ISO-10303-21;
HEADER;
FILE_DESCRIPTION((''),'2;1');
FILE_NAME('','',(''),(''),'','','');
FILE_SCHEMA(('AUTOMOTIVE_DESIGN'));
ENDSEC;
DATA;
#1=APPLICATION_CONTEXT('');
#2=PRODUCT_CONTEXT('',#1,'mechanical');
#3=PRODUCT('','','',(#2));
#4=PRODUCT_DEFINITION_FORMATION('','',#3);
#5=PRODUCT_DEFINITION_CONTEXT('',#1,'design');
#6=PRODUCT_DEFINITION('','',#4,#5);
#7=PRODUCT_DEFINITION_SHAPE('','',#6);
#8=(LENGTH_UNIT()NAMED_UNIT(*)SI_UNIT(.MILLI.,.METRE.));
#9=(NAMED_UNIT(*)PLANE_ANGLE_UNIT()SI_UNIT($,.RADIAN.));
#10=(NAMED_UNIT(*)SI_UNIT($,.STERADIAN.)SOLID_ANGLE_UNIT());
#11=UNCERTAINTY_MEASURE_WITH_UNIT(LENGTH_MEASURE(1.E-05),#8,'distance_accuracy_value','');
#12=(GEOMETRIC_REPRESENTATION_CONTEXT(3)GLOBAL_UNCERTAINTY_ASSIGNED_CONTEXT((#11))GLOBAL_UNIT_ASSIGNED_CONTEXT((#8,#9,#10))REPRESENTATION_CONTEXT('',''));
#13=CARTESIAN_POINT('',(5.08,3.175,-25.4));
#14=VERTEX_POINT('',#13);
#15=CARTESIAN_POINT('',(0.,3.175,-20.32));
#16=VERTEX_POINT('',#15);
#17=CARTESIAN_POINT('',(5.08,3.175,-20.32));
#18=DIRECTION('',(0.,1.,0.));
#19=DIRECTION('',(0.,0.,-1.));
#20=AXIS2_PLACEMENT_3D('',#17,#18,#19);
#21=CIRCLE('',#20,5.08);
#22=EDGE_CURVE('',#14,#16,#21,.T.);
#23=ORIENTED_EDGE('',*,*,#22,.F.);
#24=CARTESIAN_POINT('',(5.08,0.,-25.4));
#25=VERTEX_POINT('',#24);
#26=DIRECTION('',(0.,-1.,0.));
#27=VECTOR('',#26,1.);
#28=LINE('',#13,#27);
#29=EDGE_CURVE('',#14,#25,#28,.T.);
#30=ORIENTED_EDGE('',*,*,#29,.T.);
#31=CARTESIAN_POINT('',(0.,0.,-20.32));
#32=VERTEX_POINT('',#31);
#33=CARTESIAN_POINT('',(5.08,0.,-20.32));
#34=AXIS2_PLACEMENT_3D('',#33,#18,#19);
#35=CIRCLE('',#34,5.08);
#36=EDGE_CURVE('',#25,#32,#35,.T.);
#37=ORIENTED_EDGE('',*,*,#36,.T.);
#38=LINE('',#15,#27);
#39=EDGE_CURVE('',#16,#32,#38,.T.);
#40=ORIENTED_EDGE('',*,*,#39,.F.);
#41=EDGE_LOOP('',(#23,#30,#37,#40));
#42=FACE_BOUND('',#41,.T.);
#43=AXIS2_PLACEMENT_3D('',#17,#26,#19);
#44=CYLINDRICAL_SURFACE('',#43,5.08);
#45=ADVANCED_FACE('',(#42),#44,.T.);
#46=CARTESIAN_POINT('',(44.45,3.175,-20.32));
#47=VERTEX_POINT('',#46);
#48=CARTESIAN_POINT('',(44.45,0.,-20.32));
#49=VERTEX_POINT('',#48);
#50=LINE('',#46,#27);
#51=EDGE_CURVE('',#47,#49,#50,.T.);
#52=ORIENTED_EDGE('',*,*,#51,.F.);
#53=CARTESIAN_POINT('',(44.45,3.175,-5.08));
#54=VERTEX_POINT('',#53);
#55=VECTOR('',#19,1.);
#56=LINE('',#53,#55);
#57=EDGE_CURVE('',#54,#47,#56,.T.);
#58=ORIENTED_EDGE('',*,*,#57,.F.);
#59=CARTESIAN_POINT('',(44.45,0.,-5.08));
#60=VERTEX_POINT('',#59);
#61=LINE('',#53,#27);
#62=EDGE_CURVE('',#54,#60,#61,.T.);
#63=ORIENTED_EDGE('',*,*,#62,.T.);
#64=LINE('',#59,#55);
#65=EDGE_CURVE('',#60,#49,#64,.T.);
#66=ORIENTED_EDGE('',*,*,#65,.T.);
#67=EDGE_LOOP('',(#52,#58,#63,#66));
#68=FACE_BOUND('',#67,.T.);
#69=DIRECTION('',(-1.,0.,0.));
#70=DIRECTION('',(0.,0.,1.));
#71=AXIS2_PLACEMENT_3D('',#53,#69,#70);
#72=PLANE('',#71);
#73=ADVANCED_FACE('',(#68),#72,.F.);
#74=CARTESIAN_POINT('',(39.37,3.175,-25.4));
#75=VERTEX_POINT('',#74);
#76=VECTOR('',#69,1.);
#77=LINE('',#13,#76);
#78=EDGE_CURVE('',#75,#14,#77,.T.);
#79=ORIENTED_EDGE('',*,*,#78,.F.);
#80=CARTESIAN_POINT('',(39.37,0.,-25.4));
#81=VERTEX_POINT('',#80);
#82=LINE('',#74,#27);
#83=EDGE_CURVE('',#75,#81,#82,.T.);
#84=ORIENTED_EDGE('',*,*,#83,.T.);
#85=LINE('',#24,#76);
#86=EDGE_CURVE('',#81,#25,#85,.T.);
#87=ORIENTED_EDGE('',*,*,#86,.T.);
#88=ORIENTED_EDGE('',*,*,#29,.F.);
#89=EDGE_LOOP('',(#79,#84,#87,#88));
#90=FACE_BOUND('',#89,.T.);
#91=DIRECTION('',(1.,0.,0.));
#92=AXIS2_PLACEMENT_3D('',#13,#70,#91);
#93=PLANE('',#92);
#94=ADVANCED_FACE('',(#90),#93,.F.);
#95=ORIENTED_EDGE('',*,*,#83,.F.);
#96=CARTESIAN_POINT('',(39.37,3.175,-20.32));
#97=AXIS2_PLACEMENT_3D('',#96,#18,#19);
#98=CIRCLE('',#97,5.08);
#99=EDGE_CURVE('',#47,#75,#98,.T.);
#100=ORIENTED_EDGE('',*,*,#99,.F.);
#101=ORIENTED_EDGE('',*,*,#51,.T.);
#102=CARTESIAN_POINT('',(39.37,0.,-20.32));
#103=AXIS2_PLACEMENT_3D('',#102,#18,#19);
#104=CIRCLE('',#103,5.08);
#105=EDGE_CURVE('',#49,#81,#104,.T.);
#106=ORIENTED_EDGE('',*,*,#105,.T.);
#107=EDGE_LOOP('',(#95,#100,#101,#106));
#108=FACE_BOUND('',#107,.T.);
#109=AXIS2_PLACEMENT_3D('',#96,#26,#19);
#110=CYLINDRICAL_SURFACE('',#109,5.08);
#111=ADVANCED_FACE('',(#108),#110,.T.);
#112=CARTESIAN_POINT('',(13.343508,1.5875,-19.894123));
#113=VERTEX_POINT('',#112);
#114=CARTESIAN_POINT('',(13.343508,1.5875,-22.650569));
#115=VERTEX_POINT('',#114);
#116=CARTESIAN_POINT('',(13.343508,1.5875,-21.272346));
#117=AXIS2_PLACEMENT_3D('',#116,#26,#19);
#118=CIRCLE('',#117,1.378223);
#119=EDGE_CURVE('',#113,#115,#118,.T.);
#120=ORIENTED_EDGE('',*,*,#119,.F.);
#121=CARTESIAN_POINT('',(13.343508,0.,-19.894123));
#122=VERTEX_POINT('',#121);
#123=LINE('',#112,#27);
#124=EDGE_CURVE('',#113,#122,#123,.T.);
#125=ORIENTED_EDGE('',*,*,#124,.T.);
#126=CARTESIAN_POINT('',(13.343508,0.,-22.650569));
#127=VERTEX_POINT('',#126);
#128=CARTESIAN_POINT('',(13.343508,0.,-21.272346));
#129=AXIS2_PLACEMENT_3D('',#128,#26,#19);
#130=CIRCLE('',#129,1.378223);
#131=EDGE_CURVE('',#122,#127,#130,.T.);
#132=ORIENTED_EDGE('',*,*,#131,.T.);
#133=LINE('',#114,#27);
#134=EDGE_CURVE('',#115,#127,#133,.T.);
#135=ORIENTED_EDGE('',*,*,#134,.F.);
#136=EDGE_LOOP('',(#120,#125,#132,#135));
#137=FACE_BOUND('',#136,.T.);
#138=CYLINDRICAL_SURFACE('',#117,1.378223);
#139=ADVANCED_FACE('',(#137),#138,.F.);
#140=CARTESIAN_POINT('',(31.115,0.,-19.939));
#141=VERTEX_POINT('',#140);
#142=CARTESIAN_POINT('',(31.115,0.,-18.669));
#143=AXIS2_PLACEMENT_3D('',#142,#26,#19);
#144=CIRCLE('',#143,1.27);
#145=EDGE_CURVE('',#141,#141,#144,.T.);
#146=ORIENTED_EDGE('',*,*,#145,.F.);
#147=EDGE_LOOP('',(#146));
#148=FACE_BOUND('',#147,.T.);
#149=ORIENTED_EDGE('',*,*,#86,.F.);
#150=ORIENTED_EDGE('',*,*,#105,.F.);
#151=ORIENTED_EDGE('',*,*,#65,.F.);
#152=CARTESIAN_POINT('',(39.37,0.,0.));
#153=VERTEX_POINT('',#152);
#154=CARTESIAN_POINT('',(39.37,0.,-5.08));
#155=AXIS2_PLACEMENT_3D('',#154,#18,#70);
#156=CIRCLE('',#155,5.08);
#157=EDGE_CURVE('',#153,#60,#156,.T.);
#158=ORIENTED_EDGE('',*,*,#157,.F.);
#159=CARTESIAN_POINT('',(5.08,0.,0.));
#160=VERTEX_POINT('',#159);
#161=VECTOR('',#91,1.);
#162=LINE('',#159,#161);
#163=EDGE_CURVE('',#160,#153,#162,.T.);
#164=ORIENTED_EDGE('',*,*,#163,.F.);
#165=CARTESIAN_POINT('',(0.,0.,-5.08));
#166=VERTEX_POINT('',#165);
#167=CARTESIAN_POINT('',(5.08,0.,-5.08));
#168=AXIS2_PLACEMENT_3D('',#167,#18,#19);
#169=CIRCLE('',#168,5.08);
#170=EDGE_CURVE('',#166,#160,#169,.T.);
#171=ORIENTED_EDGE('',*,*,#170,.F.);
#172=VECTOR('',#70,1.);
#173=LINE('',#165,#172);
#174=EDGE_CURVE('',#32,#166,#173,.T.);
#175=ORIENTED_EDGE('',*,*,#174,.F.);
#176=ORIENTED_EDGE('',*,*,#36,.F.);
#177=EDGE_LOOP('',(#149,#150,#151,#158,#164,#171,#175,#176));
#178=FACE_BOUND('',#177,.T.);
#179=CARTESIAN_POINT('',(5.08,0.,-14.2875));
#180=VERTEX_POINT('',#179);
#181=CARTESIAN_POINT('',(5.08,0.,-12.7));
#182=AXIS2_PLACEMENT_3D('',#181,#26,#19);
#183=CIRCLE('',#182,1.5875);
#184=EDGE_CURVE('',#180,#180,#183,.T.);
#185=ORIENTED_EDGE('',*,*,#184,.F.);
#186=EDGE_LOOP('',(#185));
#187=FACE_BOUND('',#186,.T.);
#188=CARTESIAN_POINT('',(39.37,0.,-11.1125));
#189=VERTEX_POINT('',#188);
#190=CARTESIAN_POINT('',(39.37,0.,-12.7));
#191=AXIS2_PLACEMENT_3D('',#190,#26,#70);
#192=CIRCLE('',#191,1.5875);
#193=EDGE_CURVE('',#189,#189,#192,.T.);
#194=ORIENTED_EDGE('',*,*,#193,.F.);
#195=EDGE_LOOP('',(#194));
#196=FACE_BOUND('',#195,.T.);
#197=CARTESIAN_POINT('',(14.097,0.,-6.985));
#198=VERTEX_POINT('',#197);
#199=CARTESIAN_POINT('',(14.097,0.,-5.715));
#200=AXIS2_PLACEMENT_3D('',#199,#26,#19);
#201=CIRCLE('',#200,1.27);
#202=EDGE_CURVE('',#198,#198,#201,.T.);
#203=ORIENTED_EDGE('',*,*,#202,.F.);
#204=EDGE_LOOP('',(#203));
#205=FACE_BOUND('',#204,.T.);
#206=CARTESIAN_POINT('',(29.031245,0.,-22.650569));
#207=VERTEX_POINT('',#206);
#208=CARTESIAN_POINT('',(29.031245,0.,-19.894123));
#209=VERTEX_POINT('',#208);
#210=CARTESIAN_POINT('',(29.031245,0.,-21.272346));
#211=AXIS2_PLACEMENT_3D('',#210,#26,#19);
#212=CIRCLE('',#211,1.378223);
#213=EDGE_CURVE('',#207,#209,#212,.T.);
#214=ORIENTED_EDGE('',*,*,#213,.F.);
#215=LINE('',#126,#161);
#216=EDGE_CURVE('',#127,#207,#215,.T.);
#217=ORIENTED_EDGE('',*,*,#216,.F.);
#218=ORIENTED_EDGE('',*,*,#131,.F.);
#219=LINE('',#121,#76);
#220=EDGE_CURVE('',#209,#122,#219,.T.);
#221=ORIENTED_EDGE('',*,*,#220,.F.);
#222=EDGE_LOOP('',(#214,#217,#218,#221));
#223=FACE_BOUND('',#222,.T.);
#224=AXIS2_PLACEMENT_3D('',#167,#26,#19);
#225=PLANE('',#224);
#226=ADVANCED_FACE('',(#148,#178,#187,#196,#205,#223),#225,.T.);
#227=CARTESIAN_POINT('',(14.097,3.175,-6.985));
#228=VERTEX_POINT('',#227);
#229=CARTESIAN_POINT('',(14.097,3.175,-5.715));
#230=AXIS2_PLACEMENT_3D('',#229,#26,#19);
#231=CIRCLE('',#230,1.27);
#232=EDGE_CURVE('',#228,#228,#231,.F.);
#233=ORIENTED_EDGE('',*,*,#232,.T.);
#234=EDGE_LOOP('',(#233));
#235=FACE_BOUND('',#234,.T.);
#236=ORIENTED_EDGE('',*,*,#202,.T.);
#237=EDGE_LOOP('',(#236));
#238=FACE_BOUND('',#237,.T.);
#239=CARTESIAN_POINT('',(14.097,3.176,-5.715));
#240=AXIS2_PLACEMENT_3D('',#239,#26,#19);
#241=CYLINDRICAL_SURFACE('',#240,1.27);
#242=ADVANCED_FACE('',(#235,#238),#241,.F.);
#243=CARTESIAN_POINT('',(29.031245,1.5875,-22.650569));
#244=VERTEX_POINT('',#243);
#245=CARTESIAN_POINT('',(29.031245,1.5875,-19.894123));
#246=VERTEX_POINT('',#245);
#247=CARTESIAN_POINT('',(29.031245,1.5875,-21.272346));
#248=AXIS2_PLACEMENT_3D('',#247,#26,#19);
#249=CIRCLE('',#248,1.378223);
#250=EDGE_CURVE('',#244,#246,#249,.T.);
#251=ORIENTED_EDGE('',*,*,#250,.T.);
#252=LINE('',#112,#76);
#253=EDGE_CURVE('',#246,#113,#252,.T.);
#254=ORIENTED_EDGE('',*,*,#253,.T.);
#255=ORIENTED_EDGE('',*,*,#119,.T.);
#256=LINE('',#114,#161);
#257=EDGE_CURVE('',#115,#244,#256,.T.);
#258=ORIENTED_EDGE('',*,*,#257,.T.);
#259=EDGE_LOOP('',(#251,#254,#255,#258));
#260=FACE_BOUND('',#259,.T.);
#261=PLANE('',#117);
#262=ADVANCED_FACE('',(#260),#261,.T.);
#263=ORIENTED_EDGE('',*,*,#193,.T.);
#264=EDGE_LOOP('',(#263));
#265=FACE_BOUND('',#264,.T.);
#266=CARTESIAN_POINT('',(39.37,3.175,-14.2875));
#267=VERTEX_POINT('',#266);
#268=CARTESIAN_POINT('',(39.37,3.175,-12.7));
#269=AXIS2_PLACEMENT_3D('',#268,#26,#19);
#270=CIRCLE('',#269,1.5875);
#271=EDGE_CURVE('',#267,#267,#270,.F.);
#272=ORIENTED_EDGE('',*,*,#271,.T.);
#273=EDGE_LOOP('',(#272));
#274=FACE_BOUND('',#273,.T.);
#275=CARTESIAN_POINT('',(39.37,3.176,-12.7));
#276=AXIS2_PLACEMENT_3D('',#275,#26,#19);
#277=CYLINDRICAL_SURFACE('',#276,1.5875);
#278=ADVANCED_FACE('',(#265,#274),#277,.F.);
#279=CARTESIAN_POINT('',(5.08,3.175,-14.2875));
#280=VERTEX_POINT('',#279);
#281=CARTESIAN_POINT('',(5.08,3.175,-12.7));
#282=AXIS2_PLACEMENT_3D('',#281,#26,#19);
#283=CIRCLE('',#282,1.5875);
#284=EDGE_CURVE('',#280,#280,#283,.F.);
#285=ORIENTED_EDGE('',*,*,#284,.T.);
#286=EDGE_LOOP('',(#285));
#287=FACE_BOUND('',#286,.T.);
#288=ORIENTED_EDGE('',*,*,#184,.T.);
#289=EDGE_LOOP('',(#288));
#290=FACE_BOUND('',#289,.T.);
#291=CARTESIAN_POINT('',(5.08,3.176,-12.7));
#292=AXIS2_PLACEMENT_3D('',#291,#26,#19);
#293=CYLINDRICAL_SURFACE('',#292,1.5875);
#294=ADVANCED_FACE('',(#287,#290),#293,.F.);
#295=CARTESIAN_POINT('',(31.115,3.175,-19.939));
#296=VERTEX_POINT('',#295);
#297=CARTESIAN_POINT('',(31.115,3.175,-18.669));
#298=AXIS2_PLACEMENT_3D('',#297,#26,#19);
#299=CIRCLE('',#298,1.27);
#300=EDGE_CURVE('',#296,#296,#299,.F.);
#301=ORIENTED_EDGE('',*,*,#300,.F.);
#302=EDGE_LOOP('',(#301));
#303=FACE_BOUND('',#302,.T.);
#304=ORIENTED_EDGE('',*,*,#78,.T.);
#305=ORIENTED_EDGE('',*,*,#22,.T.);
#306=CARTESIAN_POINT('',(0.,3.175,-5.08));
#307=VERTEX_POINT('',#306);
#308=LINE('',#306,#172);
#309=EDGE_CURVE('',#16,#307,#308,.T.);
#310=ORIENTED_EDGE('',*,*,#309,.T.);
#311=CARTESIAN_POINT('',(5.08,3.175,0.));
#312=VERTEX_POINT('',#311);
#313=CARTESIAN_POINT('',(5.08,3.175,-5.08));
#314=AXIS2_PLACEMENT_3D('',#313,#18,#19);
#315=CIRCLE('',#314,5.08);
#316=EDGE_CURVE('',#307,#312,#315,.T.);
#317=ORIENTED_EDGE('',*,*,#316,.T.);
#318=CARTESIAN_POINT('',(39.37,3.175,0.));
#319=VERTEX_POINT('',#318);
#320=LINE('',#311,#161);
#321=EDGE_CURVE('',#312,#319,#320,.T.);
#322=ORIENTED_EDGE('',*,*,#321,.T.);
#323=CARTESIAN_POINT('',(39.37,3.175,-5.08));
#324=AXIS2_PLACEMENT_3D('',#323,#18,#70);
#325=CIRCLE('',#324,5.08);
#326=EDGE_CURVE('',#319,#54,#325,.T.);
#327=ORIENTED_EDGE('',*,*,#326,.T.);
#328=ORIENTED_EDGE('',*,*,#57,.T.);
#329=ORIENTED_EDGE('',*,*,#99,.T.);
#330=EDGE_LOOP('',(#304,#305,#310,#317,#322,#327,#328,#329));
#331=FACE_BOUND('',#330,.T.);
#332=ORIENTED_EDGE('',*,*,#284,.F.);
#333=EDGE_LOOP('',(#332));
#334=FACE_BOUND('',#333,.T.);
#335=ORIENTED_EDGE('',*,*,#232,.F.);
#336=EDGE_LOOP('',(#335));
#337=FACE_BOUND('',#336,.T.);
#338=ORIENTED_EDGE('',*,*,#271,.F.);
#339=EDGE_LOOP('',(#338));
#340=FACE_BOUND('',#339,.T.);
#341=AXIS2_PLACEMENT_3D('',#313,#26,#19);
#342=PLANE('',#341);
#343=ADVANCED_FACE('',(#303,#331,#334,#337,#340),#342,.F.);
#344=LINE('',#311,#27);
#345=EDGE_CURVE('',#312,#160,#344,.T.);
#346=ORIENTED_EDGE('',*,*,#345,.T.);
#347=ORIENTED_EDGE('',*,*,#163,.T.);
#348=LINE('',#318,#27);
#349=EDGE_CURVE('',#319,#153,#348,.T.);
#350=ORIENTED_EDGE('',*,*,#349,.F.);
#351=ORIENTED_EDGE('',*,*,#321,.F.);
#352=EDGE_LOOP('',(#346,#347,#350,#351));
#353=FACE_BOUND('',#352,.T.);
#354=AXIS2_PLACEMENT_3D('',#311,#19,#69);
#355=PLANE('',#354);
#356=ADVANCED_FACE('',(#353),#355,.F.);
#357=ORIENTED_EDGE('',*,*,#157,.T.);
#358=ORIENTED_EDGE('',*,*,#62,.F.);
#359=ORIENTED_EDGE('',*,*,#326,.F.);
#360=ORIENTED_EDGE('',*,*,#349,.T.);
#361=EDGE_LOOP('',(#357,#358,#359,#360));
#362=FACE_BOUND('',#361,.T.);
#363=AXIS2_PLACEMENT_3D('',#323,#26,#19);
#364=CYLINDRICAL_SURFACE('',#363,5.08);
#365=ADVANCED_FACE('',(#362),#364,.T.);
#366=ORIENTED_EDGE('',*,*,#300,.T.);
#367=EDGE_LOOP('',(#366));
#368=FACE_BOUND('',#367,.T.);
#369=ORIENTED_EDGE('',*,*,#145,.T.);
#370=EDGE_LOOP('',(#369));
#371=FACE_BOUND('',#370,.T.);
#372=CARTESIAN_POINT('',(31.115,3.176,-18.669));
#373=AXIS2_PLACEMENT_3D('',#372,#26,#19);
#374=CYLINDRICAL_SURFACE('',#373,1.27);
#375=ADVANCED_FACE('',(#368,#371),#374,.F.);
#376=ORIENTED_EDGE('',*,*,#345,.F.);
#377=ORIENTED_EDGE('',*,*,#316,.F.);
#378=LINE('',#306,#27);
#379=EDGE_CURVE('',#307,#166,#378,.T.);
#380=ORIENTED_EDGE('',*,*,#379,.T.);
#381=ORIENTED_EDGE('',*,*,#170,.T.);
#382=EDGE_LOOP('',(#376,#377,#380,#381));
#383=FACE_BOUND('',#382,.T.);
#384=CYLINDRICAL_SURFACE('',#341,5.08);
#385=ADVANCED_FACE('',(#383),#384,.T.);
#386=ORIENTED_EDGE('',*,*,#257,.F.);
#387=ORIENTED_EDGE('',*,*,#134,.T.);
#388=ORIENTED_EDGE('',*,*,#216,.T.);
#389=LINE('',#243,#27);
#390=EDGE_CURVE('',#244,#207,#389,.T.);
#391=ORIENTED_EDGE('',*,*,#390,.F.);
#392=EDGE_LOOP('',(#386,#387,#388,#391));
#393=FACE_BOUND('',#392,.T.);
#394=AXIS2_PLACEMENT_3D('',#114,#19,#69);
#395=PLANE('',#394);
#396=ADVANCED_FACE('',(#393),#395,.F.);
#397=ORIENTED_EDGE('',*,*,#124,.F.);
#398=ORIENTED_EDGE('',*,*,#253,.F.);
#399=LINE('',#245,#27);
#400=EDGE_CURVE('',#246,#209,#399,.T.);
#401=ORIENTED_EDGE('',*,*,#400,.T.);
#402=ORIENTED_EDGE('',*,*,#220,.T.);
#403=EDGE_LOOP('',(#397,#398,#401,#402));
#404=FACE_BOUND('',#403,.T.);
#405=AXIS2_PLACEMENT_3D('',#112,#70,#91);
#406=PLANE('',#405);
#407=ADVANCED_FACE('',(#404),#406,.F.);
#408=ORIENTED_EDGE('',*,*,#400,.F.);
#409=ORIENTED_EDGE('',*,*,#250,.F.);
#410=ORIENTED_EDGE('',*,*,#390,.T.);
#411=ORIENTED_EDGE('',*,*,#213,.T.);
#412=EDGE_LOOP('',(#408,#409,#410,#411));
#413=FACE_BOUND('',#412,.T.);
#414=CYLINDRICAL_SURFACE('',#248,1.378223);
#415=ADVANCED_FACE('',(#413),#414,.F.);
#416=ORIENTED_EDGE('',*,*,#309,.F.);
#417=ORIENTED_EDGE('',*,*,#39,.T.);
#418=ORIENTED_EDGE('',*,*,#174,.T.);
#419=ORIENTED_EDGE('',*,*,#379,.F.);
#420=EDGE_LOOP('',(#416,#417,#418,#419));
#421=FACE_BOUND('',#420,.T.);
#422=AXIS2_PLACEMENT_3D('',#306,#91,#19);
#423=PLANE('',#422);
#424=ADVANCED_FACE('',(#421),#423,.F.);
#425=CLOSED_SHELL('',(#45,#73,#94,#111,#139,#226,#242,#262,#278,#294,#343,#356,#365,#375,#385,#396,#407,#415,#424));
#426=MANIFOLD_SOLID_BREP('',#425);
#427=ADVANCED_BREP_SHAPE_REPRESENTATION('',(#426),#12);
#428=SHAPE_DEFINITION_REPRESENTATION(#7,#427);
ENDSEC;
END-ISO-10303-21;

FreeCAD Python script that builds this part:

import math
import FreeCAD as App
import Part
import Sketcher

V = App.Vector
Q = App.Units.Quantity

doc = App.newDocument("Part")
body = doc.addObject("PartDesign::Body", "Body")

# Sketch on XZ plane
sketch1 = body.newObject("Sketcher::SketchObject", "Sketch")
sketch1.AttachmentSupport = (doc.getObject("XZ_Plane"), [""])
sketch1.MapMode = "FlatFace"
sketch1.addGeometry(Part.LineSegment(V(5, 0, 0), V(39, 0, 0)), False)
sketch1.addGeometry(Part.ArcOfCircle(Part.Circle(V(39, -5, 0), V(0, 0, 1), 5), math.radians(0), math.radians(90)), False)
sketch1.addGeometry(Part.LineSegment(V(44, -5, 0), V(44, -20, 0)), False)
sketch1.addGeometry(Part.ArcOfCircle(Part.Circle(V(39, -20, 0), V(0, 0, 1), 5), math.radians(-90), math.radians(0)), False)
sketch1.addGeometry(Part.LineSegment(V(39, -25, 0), V(5, -25, 0)), False)
sketch1.addGeometry(Part.ArcOfCircle(Part.Circle(V(5, -20, 0), V(0, 0, 1), 5), math.radians(-180), math.radians(-90)), False)
sketch1.addGeometry(Part.LineSegment(V(0, -20, 0), V(0, -5, 0)), False)
sketch1.addGeometry(Part.ArcOfCircle(Part.Circle(V(5, -5, 0), V(0, 0, 1), 5), math.radians(90), math.radians(180)), False)
sketch1.addConstraint(Sketcher.Constraint("Tangent", 0, 2, 1, 2))
sketch1.addConstraint(Sketcher.Constraint("Tangent", 1, 1, 2, 1))
sketch1.addConstraint(Sketcher.Constraint("Tangent", 2, 2, 3, 2))
sketch1.addConstraint(Sketcher.Constraint("Tangent", 3, 1, 4, 1))
sketch1.addConstraint(Sketcher.Constraint("Tangent", 4, 2, 5, 2))
sketch1.addConstraint(Sketcher.Constraint("Tangent", 5, 1, 6, 1))
sketch1.addConstraint(Sketcher.Constraint("Tangent", 6, 2, 7, 2))
sketch1.addConstraint(Sketcher.Constraint("Tangent", 7, 1, 0, 1))
sketch1.addConstraint(Sketcher.Constraint("Horizontal", 0))
sketch1.addConstraint(Sketcher.Constraint("Vertical", 2))
sketch1.addConstraint(Sketcher.Constraint("Horizontal", 4))
sketch1.addConstraint(Sketcher.Constraint("Vertical", 6))
sketch1.addConstraint(Sketcher.Constraint("Equal", 1, 3))
sketch1.addConstraint(Sketcher.Constraint("Equal", 3, 5))
sketch1.addConstraint(Sketcher.Constraint("Equal", 5, 7))
sketch1.addConstraint(Sketcher.Constraint("PointOnObject", 0, 2, -1))
sketch1.addConstraint(Sketcher.Constraint("PointOnObject", 5, 1, -2))
sketch1.addConstraint(Sketcher.Constraint("Radius", 1, Q("0.2 in")))
sketch1.addConstraint(Sketcher.Constraint("DistanceY", 2, 2, 2, 1, Q("0.6 in")))
sketch1.addConstraint(Sketcher.Constraint("DistanceX", 0, 1, 0, 2, Q("1.35 in")))
pad1 = body.newObject("PartDesign::Pad", "Pad")
pad1.Profile = sketch1
pad1.Length = Q("0.125 in")
pad1.Reversed = True

# Sketch on XZ plane
sketch2 = body.newObject("Sketcher::SketchObject", "Sketch001")
sketch2.AttachmentSupport = (doc.getObject("XZ_Plane"), [""])
sketch2.MapMode = "FlatFace"
sketch2.addGeometry(Part.Circle(V(5.1, -12.7, 0), V(0, 0, 1), 1.6), False)
sketch2.addConstraint(Sketcher.Constraint("Diameter", 0, Q("0.125 in")))
sketch2.addConstraint(Sketcher.Constraint("DistanceX", -1, 1, 0, 3, Q("0.2 in")))
sketch2.addConstraint(Sketcher.Constraint("DistanceY", 0, 3, -1, 1, Q("0.5 in")))
pocket1 = body.newObject("PartDesign::Pocket", "Pocket")
pocket1.Profile = sketch2
pocket1.Type = "UpToFirst"

# Sketch on XZ plane
sketch3 = body.newObject("Sketcher::SketchObject", "Sketch002")
sketch3.AttachmentSupport = (doc.getObject("XZ_Plane"), [""])
sketch3.MapMode = "FlatFace"
sketch3.addGeometry(Part.Circle(V(39.4, -12.7, 0), V(0, 0, 1), 1.6), False)
sketch3.addConstraint(Sketcher.Constraint("Diameter", 0, Q("0.125 in")))
sketch3.addConstraint(Sketcher.Constraint("DistanceY", 0, 3, -1, 1, Q("0.5 in")))
sketch3.addConstraint(Sketcher.Constraint("DistanceX", -1, 1, 0, 3, Q("1.55 in")))
pocket2 = body.newObject("PartDesign::Pocket", "Pocket001")
pocket2.Profile = sketch3
pocket2.Type = "UpToFirst"

# Sketch on XZ plane
sketch4 = body.newObject("Sketcher::SketchObject", "Sketch003")
sketch4.AttachmentSupport = (doc.getObject("XZ_Plane"), [""])
sketch4.MapMode = "FlatFace"
sketch4.addGeometry(Part.Circle(V(14.1, -5.7, 0), V(0, 0, 1), 1.3), False)
sketch4.addConstraint(Sketcher.Constraint("Diameter", 0, Q("0.1 in")))
sketch4.addConstraint(Sketcher.Constraint("DistanceX", -1, 1, 0, 3, Q("0.555 in")))
sketch4.addConstraint(Sketcher.Constraint("DistanceY", 0, 3, -1, 1, Q("0.225 in")))
pocket3 = body.newObject("PartDesign::Pocket", "Pocket002")
pocket3.Profile = sketch4
pocket3.Type = "UpToFirst"

# Sketch on XZ plane
sketch5 = body.newObject("Sketcher::SketchObject", "Sketch004")
sketch5.AttachmentSupport = (doc.getObject("XZ_Plane"), [""])
sketch5.MapMode = "FlatFace"
sketch5.addGeometry(Part.Circle(V(31.1, -18.7, 0), V(0, 0, 1), 1.3), False)
sketch5.addConstraint(Sketcher.Constraint("Diameter", 0, Q("0.1 in")))
sketch5.addConstraint(Sketcher.Constraint("DistanceX", -1, 1, 0, 3, Q("1.225 in")))
sketch5.addConstraint(Sketcher.Constraint("DistanceY", 0, 3, -1, 1, Q("0.735 in")))
pocket4 = body.newObject("PartDesign::Pocket", "Pocket003")
pocket4.Profile = sketch5
pocket4.Type = "UpToFirst"

# Sketch on XZ plane
sketch6 = body.newObject("Sketcher::SketchObject", "Sketch005")
sketch6.AttachmentSupport = (doc.getObject("XZ_Plane"), [""])
sketch6.MapMode = "FlatFace"
sketch6.addGeometry(Part.LineSegment(V(29, -19.9, 0), V(13.3, -19.9, 0)), False)
sketch6.addGeometry(Part.ArcOfCircle(Part.Circle(V(13.3, -21.3, 0), V(0, 0, 1), 1.4), math.radians(90), math.radians(270)), False)
sketch6.addGeometry(Part.LineSegment(V(13.3, -22.7, 0), V(29, -22.7, 0)), False)
sketch6.addGeometry(Part.ArcOfCircle(Part.Circle(V(29, -21.3, 0), V(0, 0, 1), 1.4), math.radians(-90), math.radians(90)), False)
sketch6.addConstraint(Sketcher.Constraint("Tangent", 0, 2, 1, 1))
sketch6.addConstraint(Sketcher.Constraint("Tangent", 1, 2, 2, 1))
sketch6.addConstraint(Sketcher.Constraint("Tangent", 2, 2, 3, 1))
sketch6.addConstraint(Sketcher.Constraint("Tangent", 3, 2, 0, 1))
sketch6.addConstraint(Sketcher.Constraint("Horizontal", 0))
sketch6.addConstraint(Sketcher.Constraint("Horizontal", 2))
sketch6.addConstraint(Sketcher.Constraint("Radius", 1, Q("1.378223 mm")))
sketch6.addConstraint(Sketcher.Constraint("DistanceX", 0, 2, 0, 1, Q("15.687737 mm")))
sketch6.addConstraint(Sketcher.Constraint("DistanceX", -1, 1, 1, 3, Q("13.343508 mm")))
sketch6.addConstraint(Sketcher.Constraint("DistanceY", 1, 2, -1, 1, Q("22.650569 mm")))
pocket5 = body.newObject("PartDesign::Pocket", "Pocket004")
pocket5.Profile = sketch6
pocket5.Length = Q("0.0625 in")

doc.recompute()
